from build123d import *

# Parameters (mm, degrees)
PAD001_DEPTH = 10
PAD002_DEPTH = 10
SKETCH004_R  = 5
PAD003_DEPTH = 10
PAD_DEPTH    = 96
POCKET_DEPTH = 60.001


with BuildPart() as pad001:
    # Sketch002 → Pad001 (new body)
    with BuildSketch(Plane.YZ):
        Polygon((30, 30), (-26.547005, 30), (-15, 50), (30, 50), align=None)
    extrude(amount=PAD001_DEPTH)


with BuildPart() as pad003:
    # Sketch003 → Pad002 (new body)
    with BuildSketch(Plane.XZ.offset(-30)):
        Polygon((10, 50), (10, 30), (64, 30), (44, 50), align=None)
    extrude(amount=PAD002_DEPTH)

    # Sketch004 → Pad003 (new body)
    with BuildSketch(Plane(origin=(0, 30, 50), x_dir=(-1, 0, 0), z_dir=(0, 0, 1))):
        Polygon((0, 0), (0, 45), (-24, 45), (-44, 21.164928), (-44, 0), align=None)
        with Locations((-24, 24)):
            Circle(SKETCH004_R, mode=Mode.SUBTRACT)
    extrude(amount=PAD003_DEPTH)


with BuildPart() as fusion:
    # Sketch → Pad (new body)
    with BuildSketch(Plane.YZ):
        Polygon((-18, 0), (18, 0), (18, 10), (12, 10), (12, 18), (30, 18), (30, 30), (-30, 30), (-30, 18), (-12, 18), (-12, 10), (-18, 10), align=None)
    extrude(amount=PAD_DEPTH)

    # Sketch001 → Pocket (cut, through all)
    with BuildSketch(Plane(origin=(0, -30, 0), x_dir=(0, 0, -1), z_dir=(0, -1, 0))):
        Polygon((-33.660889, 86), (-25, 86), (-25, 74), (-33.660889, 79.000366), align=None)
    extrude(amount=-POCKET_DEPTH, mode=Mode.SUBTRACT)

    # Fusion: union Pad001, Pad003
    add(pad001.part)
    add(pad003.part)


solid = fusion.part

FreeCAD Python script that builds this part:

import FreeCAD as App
import Part
import Sketcher
Q = App.Units.Quantity

doc = App.newDocument("Part")
body = doc.addObject("PartDesign::Body", "Body")

sketch1 = body.newObject("Sketcher::SketchObject", "Sketch")
sketch1.AttachmentSupport = (doc.getObject("YZ_Plane"), [""])
sketch1.MapMode = "FlatFace"
sketch1.addGeometry(Part.LineSegment(App.Vector(-27, 30, 0), App.Vector(30, 30, 0)), False)
sketch1.addGeometry(Part.LineSegment(App.Vector(30, 30, 0), App.Vector(30, 50, 0)), False)
sketch1.addGeometry(Part.LineSegment(App.Vector(30, 50, 0), App.Vector(-15, 50, 0)), False)
sketch1.addGeometry(Part.LineSegment(App.Vector(-15, 50, 0), App.Vector(-27, 30, 0)), False)
sketch1.addConstraint(Sketcher.Constraint("Coincident", 0, 2, 1, 1))
sketch1.addConstraint(Sketcher.Constraint("Coincident", 1, 2, 2, 1))
sketch1.addConstraint(Sketcher.Constraint("Coincident", 2, 2, 3, 1))
sketch1.addConstraint(Sketcher.Constraint("Coincident", 3, 2, 0, 1))
sketch1.addConstraint(Sketcher.Constraint("Horizontal", 0))
sketch1.addConstraint(Sketcher.Constraint("Vertical", 1))
sketch1.addConstraint(Sketcher.Constraint("Horizontal", 2))
sketch1.addConstraint(Sketcher.Constraint("DistanceX", 2, 2, 2, 1, Q("45 mm")))
sketch1.addConstraint(Sketcher.Constraint("DistanceY", 1, 1, 1, 2, Q("20 mm")))
sketch1.addConstraint(Sketcher.Constraint("Angle", 3, Q("-119.999999 deg")))
sketch1.addConstraint(Sketcher.Constraint("DistanceX", -1, 1, 0, 2, Q("30 mm")))
sketch1.addConstraint(Sketcher.Constraint("DistanceY", -1, 1, 0, 2, Q("30 mm")))
pad1 = body.newObject("PartDesign::Pad", "Pad")
pad1.Profile = sketch1
pad1.Length = 10
body2 = doc.addObject("PartDesign::Body", "Body001")

sketch2 = body2.newObject("Sketcher::SketchObject", "Sketch001")
sketch2.AttachmentSupport = (doc.getObject("XZ_Plane001"), [""])
sketch2.MapMode = "FlatFace"
sketch2.AttachmentOffset = App.Placement(App.Vector(0, 0, -30), App.Rotation())
sketch2.addGeometry(Part.LineSegment(App.Vector(10, 50, 0), App.Vector(10, 30, 0)), False)
sketch2.addGeometry(Part.LineSegment(App.Vector(10, 30, 0), App.Vector(64, 30, 0)), False)
sketch2.addGeometry(Part.LineSegment(App.Vector(64, 30, 0), App.Vector(44, 50, 0)), False)
sketch2.addGeometry(Part.LineSegment(App.Vector(44, 50, 0), App.Vector(10, 50, 0)), False)
sketch2.addConstraint(Sketcher.Constraint("Coincident", 0, 2, 1, 1))
sketch2.addConstraint(Sketcher.Constraint("Coincident", 1, 2, 2, 1))
sketch2.addConstraint(Sketcher.Constraint("Coincident", 2, 2, 3, 1))
sketch2.addConstraint(Sketcher.Constraint("Coincident", 3, 2, 0, 1))
sketch2.addConstraint(Sketcher.Constraint("Vertical", 0))
sketch2.addConstraint(Sketcher.Constraint("Horizontal", 1))
sketch2.addConstraint(Sketcher.Constraint("Horizontal", 3))
sketch2.addConstraint(Sketcher.Constraint("DistanceX", 1, 1, 1, 2, Q("54 mm")))
sketch2.addConstraint(Sketcher.Constraint("DistanceX", 3, 2, 3, 1, Q("34 mm")))
sketch2.addConstraint(Sketcher.Constraint("DistanceY", 0, 2, 0, 1, Q("20 mm")))
sketch2.addConstraint(Sketcher.Constraint("DistanceX", -1, 1, 0, 2, Q("10 mm")))
sketch2.addConstraint(Sketcher.Constraint("DistanceY", -1, 1, 0, 2, Q("30 mm")))
pad2 = body2.newObject("PartDesign::Pad", "Pad001")
pad2.Profile = sketch2
pad2.Length = 10

sketch3 = body2.newObject("Sketcher::SketchObject", "Sketch002")
sketch3.AttachmentSupport = (doc.getObject("XY_Plane001"), [""])
sketch3.MapMode = "FlatFace"
sketch3.AttachmentOffset = App.Placement(App.Vector(0, 0, 50), App.Rotation())
sketch3.addGeometry(Part.LineSegment(App.Vector(0, 30, 0), App.Vector(0, -15, 0)), False)
sketch3.addGeometry(Part.LineSegment(App.Vector(0, -15, 0), App.Vector(24, -15, 0)), False)
sketch3.addGeometry(Part.LineSegment(App.Vector(24, -15, 0), App.Vector(44, 9, 0)), False)
sketch3.addGeometry(Part.LineSegment(App.Vector(44, 9, 0), App.Vector(44, 30, 0)), False)
sketch3.addGeometry(Part.LineSegment(App.Vector(44, 30, 0), App.Vector(0, 30, 0)), False)
sketch3.addGeometry(Part.Circle(App.Vector(24, 6, 0), App.Vector(0, 0, 1), 5), False)
sketch3.addConstraint(Sketcher.Constraint("Coincident", 0, 2, 1, 1))
sketch3.addConstraint(Sketcher.Constraint("Coincident", 1, 2, 2, 1))
sketch3.addConstraint(Sketcher.Constraint("Coincident", 2, 2, 3, 1))
sketch3.addConstraint(Sketcher.Constraint("Coincident", 3, 2, 4, 1))
sketch3.addConstraint(Sketcher.Constraint("Coincident", 4, 2, 0, 1))
sketch3.addConstraint(Sketcher.Constraint("Vertical", 0))
sketch3.addConstraint(Sketcher.Constraint("Horizontal", 1))
sketch3.addConstraint(Sketcher.Constraint("Vertical", 3))
sketch3.addConstraint(Sketcher.Constraint("Horizontal", 4))
sketch3.addConstraint(Sketcher.Constraint("PointOnObject", 0, 2, -2))
sketch3.addConstraint(Sketcher.Constraint("Vertical", 5, 3, 1, 2))
sketch3.addConstraint(Sketcher.Constraint("Diameter", 5, Q("10 mm")))
sketch3.addConstraint(Sketcher.Constraint("DistanceX", 1, 1, 1, 2, Q("24 mm")))
sketch3.addConstraint(Sketcher.Constraint("DistanceX", 4, 2, 4, 1, Q("44 mm")))
sketch3.addConstraint(Sketcher.Constraint("DistanceY", 0, 2, 0, 1, Q("45 mm")))
sketch3.addConstraint(Sketcher.Constraint("Angle", 2, Q("50 deg")))
sketch3.addConstraint(Sketcher.Constraint("DistanceY", -1, 1, 5, 3, Q("6 mm")))
sketch3.addConstraint(Sketcher.Constraint("DistanceY", 0, 2, -1, 1, Q("15 mm")))
pad3 = body2.newObject("PartDesign::Pad", "Pad002")
pad3.Profile = sketch3
pad3.Length = 10
body3 = doc.addObject("PartDesign::Body", "Body002")

sketch4 = body3.newObject("Sketcher::SketchObject", "Sketch003")
sketch4.AttachmentSupport = (doc.getObject("YZ_Plane002"), [""])
sketch4.MapMode = "FlatFace"
sketch4.addGeometry(Part.LineSegment(App.Vector(-18, 0, 0), App.Vector(18, 0, 0)), False)
sketch4.addGeometry(Part.LineSegment(App.Vector(18, 0, 0), App.Vector(18, 10, 0)), False)
sketch4.addGeometry(Part.LineSegment(App.Vector(18, 10, 0), App.Vector(12, 10, 0)), False)
sketch4.addGeometry(Part.LineSegment(App.Vector(12, 10, 0), App.Vector(12, 18, 0)), False)
sketch4.addGeometry(Part.LineSegment(App.Vector(12, 18, 0), App.Vector(30, 18, 0)), False)
sketch4.addGeometry(Part.LineSegment(App.Vector(30, 18, 0), App.Vector(30, 30, 0)), False)
sketch4.addGeometry(Part.LineSegment(App.Vector(30, 30, 0), App.Vector(-30, 30, 0)), False)
sketch4.addGeometry(Part.LineSegment(App.Vector(-30, 30, 0), App.Vector(-30, 18, 0)), False)
sketch4.addGeometry(Part.LineSegment(App.Vector(-30, 18, 0), App.Vector(-12, 18, 0)), False)
sketch4.addGeometry(Part.LineSegment(App.Vector(-12, 18, 0), App.Vector(-12, 10, 0)), False)
sketch4.addGeometry(Part.LineSegment(App.Vector(-12, 10, 0), App.Vector(-18, 10, 0)), False)
sketch4.addGeometry(Part.LineSegment(App.Vector(-18, 10, 0), App.Vector(-18, 0, 0)), False)
sketch4.addConstraint(Sketcher.Constraint("Coincident", 0, 2, 1, 1))
sketch4.addConstraint(Sketcher.Constraint("Coincident", 1, 2, 2, 1))
sketch4.addConstraint(Sketcher.Constraint("Coincident", 2, 2, 3, 1))
sketch4.addConstraint(Sketcher.Constraint("Coincident", 3, 2, 4, 1))
sketch4.addConstraint(Sketcher.Constraint("Coincident", 4, 2, 5, 1))
sketch4.addConstraint(Sketcher.Constraint("Coincident", 5, 2, 6, 1))
sketch4.addConstraint(Sketcher.Constraint("Coincident", 6, 2, 7, 1))
sketch4.addConstraint(Sketcher.Constraint("Coincident", 7, 2, 8, 1))
sketch4.addConstraint(Sketcher.Constraint("Coincident", 8, 2, 9, 1))
sketch4.addConstraint(Sketcher.Constraint("Coincident", 9, 2, 10, 1))
sketch4.addConstraint(Sketcher.Constraint("Coincident", 10, 2, 11, 1))
sketch4.addConstraint(Sketcher.Constraint("Coincident", 11, 2, 0, 1))
sketch4.addConstraint(Sketcher.Constraint("Horizontal", 0))
sketch4.addConstraint(Sketcher.Constraint("Vertical", 1))
sketch4.addConstraint(Sketcher.Constraint("Horizontal", 2))
sketch4.addConstraint(Sketcher.Constraint("Vertical", 3))
sketch4.addConstraint(Sketcher.Constraint("Horizontal", 4))
sketch4.addConstraint(Sketcher.Constraint("Vertical", 5))
sketch4.addConstraint(Sketcher.Constraint("Horizontal", 6))
sketch4.addConstraint(Sketcher.Constraint("Vertical", 7))
sketch4.addConstraint(Sketcher.Constraint("Horizontal", 8))
sketch4.addConstraint(Sketcher.Constraint("Vertical", 9))
sketch4.addConstraint(Sketcher.Constraint("Horizontal", 10))
sketch4.addConstraint(Sketcher.Constraint("Vertical", 11))
sketch4.addConstraint(Sketcher.Constraint("Symmetric", 0, 2, 11, 2, -1, 1))
sketch4.addConstraint(Sketcher.Constraint("Symmetric", 4, 2, 7, 2, -2))
sketch4.addConstraint(Sketcher.Constraint("Symmetric", 2, 2, 9, 2, -2))
sketch4.addConstraint(Sketcher.Constraint("DistanceX", 0, 1, 0, 2, Q("36 mm")))
sketch4.addConstraint(Sketcher.Constraint("DistanceX", 2, 2, 2, 1, Q("6 mm")))
sketch4.addConstraint(Sketcher.Constraint("DistanceX", 4, 1, 4, 2, Q("18 mm")))
sketch4.addConstraint(Sketcher.Constraint("DistanceY", 1, 1, 1, 2, Q("10 mm")))
sketch4.addConstraint(Sketcher.Constraint("DistanceY", 3, 1, 3, 2, Q("8 mm")))
sketch4.addConstraint(Sketcher.Constraint("DistanceY", 5, 1, 5, 2, Q("12 mm")))
pad4 = body3.newObject("PartDesign::Pad", "Pad003")
pad4.Profile = sketch4
pad4.Length = 96

sketch5 = body3.newObject("Sketcher::SketchObject", "Sketch004")
sketch5.AttachmentSupport = (doc.getObject("XZ_Plane002"), [""])
sketch5.MapMode = "FlatFace"
sketch5.AttachmentOffset = App.Placement(App.Vector(0, 0, 30), App.Rotation())
sketch5.addGeometry(Part.LineSegment(App.Vector(86, 25, 0), App.Vector(86, 34, 0)), False)
sketch5.addGeometry(Part.LineSegment(App.Vector(86, 34, 0), App.Vector(79, 34, 0)), False)
sketch5.addGeometry(Part.LineSegment(App.Vector(79, 34, 0), App.Vector(74, 25, 0)), False)
sketch5.addGeometry(Part.LineSegment(App.Vector(74, 25, 0), App.Vector(86, 25, 0)), False)
sketch5.addConstraint(Sketcher.Constraint("Coincident", 0, 2, 1, 1))
sketch5.addConstraint(Sketcher.Constraint("Coincident", 1, 2, 2, 1))
sketch5.addConstraint(Sketcher.Constraint("Coincident", 2, 2, 3, 1))
sketch5.addConstraint(Sketcher.Constraint("Coincident", 3, 2, 0, 1))
sketch5.addConstraint(Sketcher.Constraint("Vertical", 0))
sketch5.addConstraint(Sketcher.Constraint("Horizontal", 1))
sketch5.addConstraint(Sketcher.Constraint("Horizontal", 3))
sketch5.addConstraint(Sketcher.Constraint("DistanceX", 3, 1, 3, 2, Q("12 mm")))
sketch5.addConstraint(Sketcher.Constraint("Angle", 2, Q("-119.999997 deg")))
sketch5.addConstraint(Sketcher.Constraint("DistanceX", -1, 1, 0, 2, Q("86 mm")))
sketch5.addConstraint(Sketcher.Constraint("DistanceY", -1, 1, 2, 2, Q("25 mm")))
sketch5.addConstraint(Sketcher.Constraint("DistanceY", 0, 1, 0, 2, Q("8.660889 mm")))
pocket1 = body3.newObject("PartDesign::Pocket", "Pocket")
pocket1.Profile = sketch5
pocket1.Type = "ThroughAll"
doc.recompute()

boolean = body3.newObject("PartDesign::Boolean", "Boolean")
boolean.Type = "Fuse"
boolean.addObjects([body])
doc.recompute()

boolean2 = body3.newObject("PartDesign::Boolean", "Boolean001")
boolean2.Type = "Fuse"
boolean2.addObjects([body2])

doc.recompute()
